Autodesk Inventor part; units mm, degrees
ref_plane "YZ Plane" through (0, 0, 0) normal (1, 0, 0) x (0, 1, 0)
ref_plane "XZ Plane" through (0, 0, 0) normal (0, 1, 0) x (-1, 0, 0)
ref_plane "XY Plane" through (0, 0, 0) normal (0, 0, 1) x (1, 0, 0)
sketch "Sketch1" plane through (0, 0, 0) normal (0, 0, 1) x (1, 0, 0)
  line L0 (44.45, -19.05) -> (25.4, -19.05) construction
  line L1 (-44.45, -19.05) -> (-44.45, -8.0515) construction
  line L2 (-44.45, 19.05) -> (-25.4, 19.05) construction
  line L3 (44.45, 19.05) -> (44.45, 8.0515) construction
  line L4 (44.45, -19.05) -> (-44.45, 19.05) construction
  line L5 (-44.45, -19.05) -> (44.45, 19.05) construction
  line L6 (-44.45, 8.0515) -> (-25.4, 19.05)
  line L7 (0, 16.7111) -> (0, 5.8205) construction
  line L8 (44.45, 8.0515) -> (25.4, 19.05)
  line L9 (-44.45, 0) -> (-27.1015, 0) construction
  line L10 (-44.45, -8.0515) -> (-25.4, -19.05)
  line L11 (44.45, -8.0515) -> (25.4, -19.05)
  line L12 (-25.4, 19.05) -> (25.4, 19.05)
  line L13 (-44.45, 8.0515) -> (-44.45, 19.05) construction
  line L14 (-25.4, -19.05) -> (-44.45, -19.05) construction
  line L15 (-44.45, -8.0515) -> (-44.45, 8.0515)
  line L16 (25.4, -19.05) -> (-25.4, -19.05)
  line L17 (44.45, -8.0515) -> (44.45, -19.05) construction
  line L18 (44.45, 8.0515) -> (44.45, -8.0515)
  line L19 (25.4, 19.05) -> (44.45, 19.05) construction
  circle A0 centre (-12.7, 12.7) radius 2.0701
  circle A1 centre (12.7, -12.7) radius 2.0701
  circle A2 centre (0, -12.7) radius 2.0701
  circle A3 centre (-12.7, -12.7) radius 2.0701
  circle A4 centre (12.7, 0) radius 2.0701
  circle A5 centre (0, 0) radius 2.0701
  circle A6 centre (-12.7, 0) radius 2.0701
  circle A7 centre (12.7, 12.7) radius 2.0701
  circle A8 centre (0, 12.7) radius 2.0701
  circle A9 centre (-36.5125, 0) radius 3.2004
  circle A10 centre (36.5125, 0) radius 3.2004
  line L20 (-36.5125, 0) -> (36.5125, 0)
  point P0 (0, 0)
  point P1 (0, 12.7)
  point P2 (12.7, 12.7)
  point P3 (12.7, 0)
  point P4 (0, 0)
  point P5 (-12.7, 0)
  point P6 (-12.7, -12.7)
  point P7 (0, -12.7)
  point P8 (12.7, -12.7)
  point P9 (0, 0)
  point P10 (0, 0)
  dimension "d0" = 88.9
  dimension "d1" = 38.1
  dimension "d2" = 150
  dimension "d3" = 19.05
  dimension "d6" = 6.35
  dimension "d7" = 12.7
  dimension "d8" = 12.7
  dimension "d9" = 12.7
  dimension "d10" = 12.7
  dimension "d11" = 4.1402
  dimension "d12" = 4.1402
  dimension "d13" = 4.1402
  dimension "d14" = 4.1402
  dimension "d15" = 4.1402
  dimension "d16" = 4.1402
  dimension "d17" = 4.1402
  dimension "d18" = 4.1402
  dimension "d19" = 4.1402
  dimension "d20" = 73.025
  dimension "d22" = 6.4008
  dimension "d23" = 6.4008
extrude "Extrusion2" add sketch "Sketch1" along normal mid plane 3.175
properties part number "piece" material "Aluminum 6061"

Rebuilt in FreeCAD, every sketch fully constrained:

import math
import FreeCAD as App
import Part
import Sketcher
from FreeCAD import Vector
Q = App.Units.Quantity


def add_polygon(sketch, points):
    """Adds a closed chain of lines whose ends are joined by coincident constraints."""
    first, n = sketch.GeometryCount, len(points)
    for a, b in zip(points, points[1:] + points[:1]):
        sketch.addGeometry(Part.LineSegment(App.Vector(*a, 0), App.Vector(*b, 0)), False)
    for i in range(n):
        sketch.addConstraint(Sketcher.Constraint("Coincident", first + i, 2, first + (i + 1) % n, 1))

doc = App.newDocument("Part")
body = doc.addObject("PartDesign::Body", "Body")

sketch1 = body.newObject("Sketcher::SketchObject", "Sketch")
sketch1.AttachmentSupport = (doc.getObject("XY_Plane"), [""])
sketch1.MapMode = "FlatFace"
add_polygon(sketch1, [(-25.4, 19.1), (-44.5, 8.1), (-44.5, -8.1), (-25.4, -19.1), (25.4, -19.1), (44.5, -8.1), (44.5, 8.1), (25.4, 19.1)])
sketch1.addGeometry(Part.Circle(Vector(-12.7, -12.7, 0), Vector(0, 0, 1), 2.1), False)
sketch1.addGeometry(Part.Circle(Vector(0, -12.7, 0), Vector(0, 0, 1), 2.1), False)
sketch1.addGeometry(Part.Circle(Vector(12.7, -12.7, 0), Vector(0, 0, 1), 2.1), False)
sketch1.addGeometry(Part.Circle(Vector(-36.5, 0, 0), Vector(0, 0, 1), 3.2), False)
sketch1.addGeometry(Part.ArcOfCircle(Part.Circle(Vector(-12.7, 0, 0), Vector(0, 0, 1), 2.1), math.radians(0), math.radians(180)), False)
sketch1.addGeometry(Part.ArcOfCircle(Part.Circle(Vector(-12.7, 0, 0), Vector(0, 0, 1), 2.1), math.radians(180), math.radians(360)), False)
sketch1.addGeometry(Part.Circle(Vector(-12.7, 12.7, 0), Vector(0, 0, 1), 2.1), False)
sketch1.addGeometry(Part.ArcOfCircle(Part.Circle(Vector(0, 0, 0), Vector(0, 0, 1), 2.1), math.radians(0), math.radians(180)), False)
sketch1.addGeometry(Part.ArcOfCircle(Part.Circle(Vector(0, 0, 0), Vector(0, 0, 1), 2.1), math.radians(180), math.radians(360)), False)
sketch1.addGeometry(Part.ArcOfCircle(Part.Circle(Vector(12.7, 0, 0), Vector(0, 0, 1), 2.1), math.radians(0), math.radians(180)), False)
sketch1.addGeometry(Part.ArcOfCircle(Part.Circle(Vector(12.7, 0, 0), Vector(0, 0, 1), 2.1), math.radians(180), math.radians(360)), False)
sketch1.addGeometry(Part.Circle(Vector(36.5, 0, 0), Vector(0, 0, 1), 3.2), False)
sketch1.addGeometry(Part.Circle(Vector(0, 12.7, 0), Vector(0, 0, 1), 2.1), False)
sketch1.addGeometry(Part.Circle(Vector(12.7, 12.7, 0), Vector(0, 0, 1), 2.1), False)
sketch1.addConstraint(Sketcher.Constraint("Tangent", 12, 1, 13, 2))
sketch1.addConstraint(Sketcher.Constraint("Coincident", 13, 1, 12, 2))
sketch1.addConstraint(Sketcher.Constraint("Tangent", 15, 1, 16, 2))
sketch1.addConstraint(Sketcher.Constraint("Coincident", 16, 1, 15, 2))
sketch1.addConstraint(Sketcher.Constraint("Tangent", 17, 1, 18, 2))
sketch1.addConstraint(Sketcher.Constraint("Coincident", 18, 1, 17, 2))
sketch1.addConstraint(Sketcher.Constraint("Vertical", 1))
sketch1.addConstraint(Sketcher.Constraint("Horizontal", 3))
sketch1.addConstraint(Sketcher.Constraint("Vertical", 5))
sketch1.addConstraint(Sketcher.Constraint("Horizontal", 7))
sketch1.addConstraint(Sketcher.Constraint("Coincident", 15, 3, -1, 1))
sketch1.addConstraint(Sketcher.Constraint("Equal", 8, 9))
sketch1.addConstraint(Sketcher.Constraint("Equal", 9, 10))
sketch1.addConstraint(Sketcher.Constraint("Equal", 10, 12))
sketch1.addConstraint(Sketcher.Constraint("Equal", 13, 14))
sketch1.addConstraint(Sketcher.Constraint("Equal", 14, 15))
sketch1.addConstraint(Sketcher.Constraint("Equal", 16, 17))
sketch1.addConstraint(Sketcher.Constraint("Equal", 11, 19))
sketch1.addConstraint(Sketcher.Constraint("Equal", 18, 20))
sketch1.addConstraint(Sketcher.Constraint("Equal", 20, 21))
sketch1.addConstraint(Sketcher.Constraint("Symmetric", 10, 3, 14, 3, -1, 1))
sketch1.addConstraint(Sketcher.Constraint("Symmetric", 12, 3, 17, 3, -1, 1))
sketch1.addConstraint(Sketcher.Constraint("Symmetric", 11, 3, 19, 3, -1, 1))
sketch1.addConstraint(Sketcher.Constraint("Symmetric", 9, 3, 20, 3, -1, 1))
sketch1.addConstraint(Sketcher.Constraint("Symmetric", 8, 3, 21, 3, -1, 1))
sketch1.addConstraint(Sketcher.Constraint("Symmetric", 0, 2, 4, 2, -1, 1))
sketch1.addConstraint(Sketcher.Constraint("Symmetric", 2, 2, 6, 2, -1, 1))
sketch1.addConstraint(Sketcher.Constraint("Symmetric", 8, 3, 10, 3, -2))
sketch1.addConstraint(Sketcher.Constraint("PointOnObject", 9, 3, -2))
sketch1.addConstraint(Sketcher.Constraint("PointOnObject", 11, 3, -1))
sketch1.addConstraint(Sketcher.Constraint("PointOnObject", 12, 3, -1))
sketch1.addConstraint(Sketcher.Constraint("PointOnObject", 12, 1, -1))
sketch1.addConstraint(Sketcher.Constraint("PointOnObject", 13, 1, -1))
sketch1.addConstraint(Sketcher.Constraint("PointOnObject", 15, 1, -1))
sketch1.addConstraint(Sketcher.Constraint("PointOnObject", 16, 1, -1))
sketch1.addConstraint(Sketcher.Constraint("PointOnObject", 17, 1, -1))
sketch1.addConstraint(Sketcher.Constraint("PointOnObject", 18, 1, -1))
sketch1.addConstraint(Sketcher.Constraint("Parallel", 0, 4))
sketch1.addConstraint(Sketcher.Constraint("Parallel", 2, 6))
sketch1.addConstraint(Sketcher.Constraint("Horizontal", 8, 3, 9, 3))
sketch1.addConstraint(Sketcher.Constraint("Horizontal", 1, 2, 4, 2))
sketch1.addConstraint(Sketcher.Constraint("Vertical", 8, 3, 12, 3))
sketch1.addConstraint(Sketcher.Constraint("Vertical", 3, 2, 6, 2))
sketch1.addConstraint(Sketcher.Constraint("Diameter", 8, Q("0.163 in")))
sketch1.addConstraint(Sketcher.Constraint("Diameter", 11, Q("0.252 in")))
sketch1.addConstraint(Sketcher.Constraint("Angle", 0, Q("-150 deg")))
sketch1.addConstraint(Sketcher.Constraint("DistanceX", 8, 3, -1, 1, Q("0.5 in")))
sketch1.addConstraint(Sketcher.Constraint("DistanceY", 8, 3, -1, 1, Q("0.5 in")))
sketch1.addConstraint(Sketcher.Constraint("DistanceX", 2, 2, 8, 3, Q("0.5 in")))
sketch1.addConstraint(Sketcher.Constraint("DistanceY", 2, 2, -1, 1, Q("0.75 in")))
sketch1.addConstraint(Sketcher.Constraint("DistanceX", 1, 2, 2, 2, Q("0.75 in")))
sketch1.addConstraint(Sketcher.Constraint("DistanceX", 11, 3, -1, 1, Q("1.4375 in")))
pad1 = body.newObject("PartDesign::Pad", "Pad")
pad1.Profile = sketch1
pad1.Length = Q("0.125 in")
pad1.Midplane = True

doc.recompute()
